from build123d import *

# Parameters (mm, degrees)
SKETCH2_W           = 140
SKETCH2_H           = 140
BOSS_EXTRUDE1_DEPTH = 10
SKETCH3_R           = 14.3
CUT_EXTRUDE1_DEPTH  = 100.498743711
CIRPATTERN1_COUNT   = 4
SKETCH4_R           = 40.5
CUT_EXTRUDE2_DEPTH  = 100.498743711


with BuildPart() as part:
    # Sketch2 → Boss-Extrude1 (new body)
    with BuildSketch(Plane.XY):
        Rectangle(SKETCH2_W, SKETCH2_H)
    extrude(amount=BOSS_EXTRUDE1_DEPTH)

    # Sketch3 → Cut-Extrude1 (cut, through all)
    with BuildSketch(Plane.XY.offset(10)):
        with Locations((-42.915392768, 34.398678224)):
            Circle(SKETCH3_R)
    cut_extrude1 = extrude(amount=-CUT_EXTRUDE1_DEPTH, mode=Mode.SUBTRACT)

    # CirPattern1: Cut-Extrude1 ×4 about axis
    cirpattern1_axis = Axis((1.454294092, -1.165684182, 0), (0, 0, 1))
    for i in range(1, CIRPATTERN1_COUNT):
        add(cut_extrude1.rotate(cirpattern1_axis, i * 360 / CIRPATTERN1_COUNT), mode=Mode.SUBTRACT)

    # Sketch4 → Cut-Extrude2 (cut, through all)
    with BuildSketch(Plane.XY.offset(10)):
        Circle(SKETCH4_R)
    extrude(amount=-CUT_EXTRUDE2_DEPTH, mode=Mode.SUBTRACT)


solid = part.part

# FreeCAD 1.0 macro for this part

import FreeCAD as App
import Part
import Sketcher


def add_polygon(sketch, points):
    """Adds a closed chain of lines whose ends are joined by coincident constraints."""
    first, n = sketch.GeometryCount, len(points)
    for a, b in zip(points, points[1:] + points[:1]):
        sketch.addGeometry(Part.LineSegment(App.Vector(*a, 0), App.Vector(*b, 0)), False)
    for i in range(n):
        sketch.addConstraint(Sketcher.Constraint("Coincident", first + i, 2, first + (i + 1) % n, 1))

doc = App.newDocument("Part")
body = doc.addObject("PartDesign::Body", "Body")

sketch1 = doc.addObject("Sketcher::SketchObject", "Sketch")
body.addObject(sketch1)
sketch1.AttachmentSupport = (doc.XY_Plane, [""])
sketch1.MapMode = "FlatFace"
add_polygon(sketch1, [(-70, 70), (-70, -70), (70, -70), (70, 70)])
sketch1.addConstraint([
    Sketcher.Constraint("Vertical", 0),
    Sketcher.Constraint("Horizontal", 1),
    Sketcher.Constraint("Vertical", 2),
    Sketcher.Constraint("Horizontal", 3),
    Sketcher.Constraint("Symmetric", 0, 2, 2, 2, -1, 1),
    Sketcher.Constraint("Equal", 3, 0),
    Sketcher.Constraint("DistanceX", 1, 1, 1, 2, 140.0),
])
pad1 = doc.addObject("PartDesign::Pad", "Pad")
body.addObject(pad1)
pad1.Profile = sketch1
pad1.Length = 10

sketch2 = doc.addObject("Sketcher::SketchObject", "Sketch001")
body.addObject(sketch2)
sketch2.AttachmentSupport = (doc.XY_Plane, [""])
sketch2.MapMode = "FlatFace"
sketch2.AttachmentOffset = App.Placement(App.Vector(0, 0, 10), App.Rotation())
sketch2.addGeometry(Part.Circle(App.Vector(-43, 34, 0), App.Vector(0, 0, 1), 14), False)
sketch2.addConstraint([
    Sketcher.Constraint("Diameter", 0, 28.6),
    Sketcher.Constraint("DistanceY", -1, 1, 0, 3, 34.398678),
    Sketcher.Constraint("DistanceX", 0, 3, -1, 1, 42.915393),
])
pocket1 = doc.addObject("PartDesign::Pocket", "Pocket")
body.addObject(pocket1)
pocket1.Profile = sketch2
pocket1.Type = "ThroughAll"
doc.recompute()

datumline = doc.addObject("PartDesign::Line", "DatumLine")
body.addObject(datumline)
datumline.Placement = App.Placement(App.Vector(1.454294, -1.165684, 0), App.Rotation(App.Vector(0, 0, 1), App.Vector(0, 0, 1)))
polarpattern = doc.addObject("PartDesign::PolarPattern", "PolarPattern")
body.addObject(polarpattern)
polarpattern.Originals = [pocket1]
polarpattern.Axis = (datumline, [""])
polarpattern.Angle = 360
polarpattern.Occurrences = 4
body.Tip = polarpattern

sketch3 = doc.addObject("Sketcher::SketchObject", "Sketch002")
body.addObject(sketch3)
sketch3.AttachmentSupport = (doc.XY_Plane, [""])
sketch3.MapMode = "FlatFace"
sketch3.AttachmentOffset = App.Placement(App.Vector(0, 0, 10), App.Rotation())
sketch3.addGeometry(Part.Circle(App.Vector(0, 0, 0), App.Vector(0, 0, 1), 40), False)
sketch3.addConstraint([
    Sketcher.Constraint("Coincident", 0, 3, -1, 1),
    Sketcher.Constraint("Diameter", 0, 81.0),
])
pocket2 = doc.addObject("PartDesign::Pocket", "Pocket001")
body.addObject(pocket2)
pocket2.Profile = sketch3
pocket2.Type = "ThroughAll"

doc.recompute()
